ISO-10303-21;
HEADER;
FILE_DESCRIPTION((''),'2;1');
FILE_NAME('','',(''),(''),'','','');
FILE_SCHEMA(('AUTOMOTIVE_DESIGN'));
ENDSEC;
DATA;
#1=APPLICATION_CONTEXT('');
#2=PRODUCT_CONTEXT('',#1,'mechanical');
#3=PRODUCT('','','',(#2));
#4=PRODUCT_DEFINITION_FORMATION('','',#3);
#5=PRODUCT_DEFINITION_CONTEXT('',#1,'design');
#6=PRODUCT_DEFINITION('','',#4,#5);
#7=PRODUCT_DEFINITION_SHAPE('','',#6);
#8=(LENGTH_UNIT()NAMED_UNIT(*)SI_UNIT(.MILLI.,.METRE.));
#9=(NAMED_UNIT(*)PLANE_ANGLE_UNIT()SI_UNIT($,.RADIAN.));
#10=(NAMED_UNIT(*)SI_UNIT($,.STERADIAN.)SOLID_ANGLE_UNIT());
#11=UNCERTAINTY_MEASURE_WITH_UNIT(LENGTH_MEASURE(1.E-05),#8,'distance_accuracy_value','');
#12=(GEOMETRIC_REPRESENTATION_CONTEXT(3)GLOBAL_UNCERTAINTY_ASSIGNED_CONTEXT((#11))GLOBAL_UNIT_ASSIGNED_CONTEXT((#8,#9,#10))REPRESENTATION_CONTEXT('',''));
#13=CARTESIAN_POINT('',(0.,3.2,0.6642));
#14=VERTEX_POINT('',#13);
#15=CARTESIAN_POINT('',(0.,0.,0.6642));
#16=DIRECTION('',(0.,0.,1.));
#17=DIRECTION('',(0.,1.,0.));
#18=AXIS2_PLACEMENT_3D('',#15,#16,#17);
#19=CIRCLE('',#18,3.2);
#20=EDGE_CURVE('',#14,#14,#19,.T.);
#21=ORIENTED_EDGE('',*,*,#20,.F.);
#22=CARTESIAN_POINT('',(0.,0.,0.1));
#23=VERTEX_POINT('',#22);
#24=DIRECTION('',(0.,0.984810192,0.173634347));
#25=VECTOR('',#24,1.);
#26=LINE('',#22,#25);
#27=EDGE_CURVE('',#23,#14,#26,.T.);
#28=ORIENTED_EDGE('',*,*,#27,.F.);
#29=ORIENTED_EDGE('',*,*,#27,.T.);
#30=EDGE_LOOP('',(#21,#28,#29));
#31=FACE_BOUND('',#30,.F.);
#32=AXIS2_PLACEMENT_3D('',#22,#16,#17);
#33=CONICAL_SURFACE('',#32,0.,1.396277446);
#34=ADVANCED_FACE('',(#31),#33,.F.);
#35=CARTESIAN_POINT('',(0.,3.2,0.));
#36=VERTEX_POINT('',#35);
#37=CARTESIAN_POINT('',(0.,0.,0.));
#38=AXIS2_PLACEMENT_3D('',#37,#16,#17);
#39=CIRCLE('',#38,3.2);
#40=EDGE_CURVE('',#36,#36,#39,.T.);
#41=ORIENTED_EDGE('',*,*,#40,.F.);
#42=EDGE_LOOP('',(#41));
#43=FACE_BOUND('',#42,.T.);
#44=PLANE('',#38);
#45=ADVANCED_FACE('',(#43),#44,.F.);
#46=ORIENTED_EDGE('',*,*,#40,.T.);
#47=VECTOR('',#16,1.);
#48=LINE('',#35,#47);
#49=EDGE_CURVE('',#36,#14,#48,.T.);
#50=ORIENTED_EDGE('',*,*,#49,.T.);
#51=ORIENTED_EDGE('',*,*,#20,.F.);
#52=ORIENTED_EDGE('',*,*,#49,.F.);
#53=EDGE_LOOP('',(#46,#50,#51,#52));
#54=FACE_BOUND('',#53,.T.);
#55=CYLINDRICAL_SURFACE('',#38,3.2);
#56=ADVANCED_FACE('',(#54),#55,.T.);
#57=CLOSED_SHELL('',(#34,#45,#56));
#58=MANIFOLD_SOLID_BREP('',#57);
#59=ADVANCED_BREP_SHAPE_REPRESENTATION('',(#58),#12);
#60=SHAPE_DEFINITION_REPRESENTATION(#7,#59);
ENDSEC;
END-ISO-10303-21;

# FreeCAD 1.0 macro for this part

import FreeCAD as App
import Part
import Sketcher
from FreeCAD import Vector
Q = App.Units.Quantity


def add_polygon(sketch, points):
    """Adds a closed chain of lines whose ends are joined by coincident constraints."""
    first, n = sketch.GeometryCount, len(points)
    for a, b in zip(points, points[1:] + points[:1]):
        sketch.addGeometry(Part.LineSegment(App.Vector(*a, 0), App.Vector(*b, 0)), False)
    for i in range(n):
        sketch.addConstraint(Sketcher.Constraint("Coincident", first + i, 2, first + (i + 1) % n, 1))

doc = App.newDocument("Part")
params = doc.addObject("Spreadsheet::Sheet", "Params")
for row, (alias, value) in enumerate([
    ("sketch1_width", "3.2 mm"),
    ("sketch1_height", "0.1 mm"),
    ("revolution_angle", "360 deg"),
], start=1):
    params.set(f"A{row}", alias)
    params.set(f"B{row}", "=" + value)
    params.setAlias(f"B{row}", alias)

body = doc.addObject("PartDesign::Body", "Body")

sketch1 = body.newObject("Sketcher::SketchObject", "Sketch")
sketch1.AttachmentSupport = (doc.getObject("YZ_Plane"), [""])
sketch1.MapMode = "FlatFace"
add_polygon(sketch1, [(0, 0.1), (0, 0), (3.2, 0), (3.2, 0.66)])
sketch1.addConstraint([
    Sketcher.Constraint("Vertical", 0),
    Sketcher.Constraint("Horizontal", 1),
    Sketcher.Constraint("Vertical", 2),
    Sketcher.Constraint("Coincident", 0, 2, -1, 1),
    Sketcher.Constraint("DistanceX", 1, 1, 1, 2, 3.2),
    Sketcher.Constraint("DistanceY", 0, 2, 0, 1, 0.1),
    Sketcher.Constraint("Angle", 3, Q("-170.0008 deg")),
])
sketch1.setExpression("Constraints[8]", "Params.sketch1_width")
sketch1.setExpression("Constraints[9]", "Params.sketch1_height")
revolution = body.newObject("PartDesign::Revolution", "Revolution")
revolution.Profile = sketch1
revolution.ReferenceAxis = (sketch1, ["V_Axis"])
revolution.setExpression("Angle", "Params.revolution_angle")

doc.recompute()
